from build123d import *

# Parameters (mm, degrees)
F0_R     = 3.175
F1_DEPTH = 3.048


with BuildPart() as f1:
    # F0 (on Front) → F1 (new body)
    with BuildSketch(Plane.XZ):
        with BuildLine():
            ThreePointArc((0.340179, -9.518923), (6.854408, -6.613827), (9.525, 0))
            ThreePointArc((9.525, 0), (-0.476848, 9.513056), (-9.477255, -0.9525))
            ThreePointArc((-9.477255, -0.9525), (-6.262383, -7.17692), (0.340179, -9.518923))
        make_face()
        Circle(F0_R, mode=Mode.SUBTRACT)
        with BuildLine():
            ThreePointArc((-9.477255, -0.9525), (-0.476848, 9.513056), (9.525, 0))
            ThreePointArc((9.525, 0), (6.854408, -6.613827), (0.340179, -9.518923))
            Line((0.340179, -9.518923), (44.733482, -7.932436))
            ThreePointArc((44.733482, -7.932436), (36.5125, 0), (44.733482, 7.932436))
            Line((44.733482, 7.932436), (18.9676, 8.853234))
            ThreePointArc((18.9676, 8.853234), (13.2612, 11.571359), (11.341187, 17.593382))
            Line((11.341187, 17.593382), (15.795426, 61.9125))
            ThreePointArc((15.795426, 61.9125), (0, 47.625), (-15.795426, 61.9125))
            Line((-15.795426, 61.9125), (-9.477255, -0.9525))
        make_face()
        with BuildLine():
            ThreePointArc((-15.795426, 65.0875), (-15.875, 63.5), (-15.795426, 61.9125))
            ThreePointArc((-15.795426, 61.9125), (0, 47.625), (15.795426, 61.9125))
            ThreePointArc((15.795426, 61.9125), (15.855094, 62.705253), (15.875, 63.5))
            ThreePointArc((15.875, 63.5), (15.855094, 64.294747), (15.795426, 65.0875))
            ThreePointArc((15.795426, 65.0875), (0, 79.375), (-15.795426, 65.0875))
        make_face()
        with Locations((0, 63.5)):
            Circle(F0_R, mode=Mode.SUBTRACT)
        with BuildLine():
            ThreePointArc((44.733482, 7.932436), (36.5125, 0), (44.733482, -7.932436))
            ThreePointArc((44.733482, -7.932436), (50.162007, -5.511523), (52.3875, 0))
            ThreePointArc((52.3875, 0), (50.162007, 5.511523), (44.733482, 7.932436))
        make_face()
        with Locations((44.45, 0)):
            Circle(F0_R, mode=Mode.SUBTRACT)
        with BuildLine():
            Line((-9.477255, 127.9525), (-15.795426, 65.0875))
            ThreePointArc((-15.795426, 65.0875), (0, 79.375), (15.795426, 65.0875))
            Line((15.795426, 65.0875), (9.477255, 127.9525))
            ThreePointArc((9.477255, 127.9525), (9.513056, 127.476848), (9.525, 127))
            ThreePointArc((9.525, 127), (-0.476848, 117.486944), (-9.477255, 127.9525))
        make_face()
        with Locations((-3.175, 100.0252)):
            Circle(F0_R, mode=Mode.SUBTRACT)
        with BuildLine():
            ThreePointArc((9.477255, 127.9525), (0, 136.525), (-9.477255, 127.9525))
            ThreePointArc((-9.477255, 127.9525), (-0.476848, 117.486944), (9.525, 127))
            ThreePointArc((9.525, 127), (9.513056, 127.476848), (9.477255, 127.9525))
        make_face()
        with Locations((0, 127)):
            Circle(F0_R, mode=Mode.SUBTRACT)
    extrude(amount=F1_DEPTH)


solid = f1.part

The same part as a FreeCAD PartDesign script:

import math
import FreeCAD as App
import Part
import Sketcher
from FreeCAD import Vector
Q = App.Units.Quantity

doc = App.newDocument("Part")
params = doc.addObject("Spreadsheet::Sheet", "Params")
for row, (alias, value) in enumerate([
    ("sketch1_diameter", "0.25 in"),
    ("sketch1_diameter2", "0.25 in"),
    ("sketch1_diameter3", "0.25 in"),
    ("sketch1_diameter4", "0.25 in"),
    ("sketch1_diameter5", "0.25 in"),
    ("pad1_length", "0.12 in"),
], start=1):
    params.set(f"A{row}", alias)
    params.set(f"B{row}", "=" + value)
    params.setAlias(f"B{row}", alias)

body = doc.addObject("PartDesign::Body", "Body")

sketch1 = doc.addObject("Sketcher::SketchObject", "Sketch")
body.addObject(sketch1)
sketch1.AttachmentSupport = (doc.XZ_Plane, [""])
sketch1.MapMode = "FlatFace"
sketch1.addGeometry([
    Part.ArcOfCircle(Part.Circle(Vector(-0.000001, -0.000001, 0), Vector(0, 0, 1), 9.524999), math.radians(-174.260832), math.radians(-87.953281)),
    Part.LineSegment(Vector(0.340179, -9.518923, 0), Vector(44.733482, -7.932436, 0)),
    Part.ArcOfCircle(Part.Circle(Vector(44.450001, -0.000001, 0), Vector(0, 0, 1), 7.937499), math.radians(-87.953294), math.radians(0.000005)),
    Part.ArcOfCircle(Part.Circle(Vector(44.450001, 0.000001, 0), Vector(0, 0, 1), 7.937499), math.radians(-0.000005), math.radians(87.953294)),
    Part.LineSegment(Vector(44.733482, 7.932436, 0), Vector(18.9676, 8.853234, 0)),
    Part.ArcOfCircle(Part.Circle(Vector(19.251535, 16.798361, 0), Vector(0, 0, 1), 7.950199), math.radians(174.260822), math.radians(267.953292)),
    Part.LineSegment(Vector(11.341187, 17.593382, 0), Vector(15.795426, 61.9125, 0)),
    Part.ArcOfCircle(Part.Circle(Vector(-0.000084, 63.5, 0), Vector(0, 0, 1), 15.875084), math.radians(-5.73914), math.radians(0)),
    Part.ArcOfCircle(Part.Circle(Vector(-0.000084, 63.5, 0), Vector(0, 0, 1), 15.875084), math.radians(0), math.radians(5.73914)),
    Part.LineSegment(Vector(15.795426, 65.0875, 0), Vector(9.477255, 127.9525, 0)),
    Part.ArcOfCircle(Part.Circle(Vector(0, 127, 0), Vector(0, 0, 1), 9.525), math.radians(5.739168), math.radians(174.260832)),
    Part.LineSegment(Vector(-9.477255, 127.9525, 0), Vector(-15.795426, 65.0875, 0)),
    Part.ArcOfCircle(Part.Circle(Vector(0.000087, 63.5, 0), Vector(0, 0, 1), 15.875087), math.radians(174.260861), math.radians(185.739139)),
    Part.LineSegment(Vector(-15.795426, 61.9125, 0), Vector(-9.477255, -0.9525, 0)),
    Part.Circle(Vector(0, 0, 0), Vector(0, 0, 1), 3.175),
    Part.Circle(Vector(44.45, 0, 0), Vector(0, 0, 1), 3.175),
    Part.Circle(Vector(0, 63.5, 0), Vector(0, 0, 1), 3.175),
    Part.Circle(Vector(-3.175, 100.0252, 0), Vector(0, 0, 1), 3.175),
    Part.Circle(Vector(0, 127, 0), Vector(0, 0, 1), 3.175),
], False)
sketch1.addConstraint([
    Sketcher.Constraint("Coincident", 0, 2, 1, 1),
    Sketcher.Constraint("Coincident", 1, 2, 2, 1),
    Sketcher.Constraint("Coincident", 2, 2, 3, 1),
    Sketcher.Constraint("Coincident", 3, 2, 4, 1),
    Sketcher.Constraint("Coincident", 4, 2, 5, 2),
    Sketcher.Constraint("Coincident", 5, 1, 6, 1),
    Sketcher.Constraint("Coincident", 6, 2, 7, 1),
    Sketcher.Constraint("Coincident", 7, 2, 8, 1),
    Sketcher.Constraint("Coincident", 8, 2, 9, 1),
    Sketcher.Constraint("Coincident", 9, 2, 10, 1),
    Sketcher.Constraint("Coincident", 10, 2, 11, 1),
    Sketcher.Constraint("Coincident", 11, 2, 12, 1),
    Sketcher.Constraint("Coincident", 12, 2, 13, 1),
    Sketcher.Constraint("Coincident", 13, 2, 0, 1),
    Sketcher.Constraint("Coincident", 0, 3, -1, 1),
    Sketcher.Constraint("Coincident", 14, 3, -1, 1),
    Sketcher.Constraint("Coincident", 3, 3, 2, 3),
    Sketcher.Constraint("Coincident", 8, 3, 7, 3),
    Sketcher.Constraint("Coincident", 15, 3, 2, 3),
    Sketcher.Constraint("Coincident", 18, 3, 10, 3),
    Sketcher.Constraint("PointOnObject", 2, 3, -1),
    Sketcher.Constraint("PointOnObject", 10, 3, -2),
    Sketcher.Constraint("PointOnObject", 16, 3, -2),
    Sketcher.Constraint("PointOnObject", 2, 2, -1),
    Sketcher.Constraint("Diameter", 14, Q("0.25 in")),
    Sketcher.Constraint("Diameter", 15, Q("0.25 in")),
    Sketcher.Constraint("Diameter", 16, Q("0.25 in")),
    Sketcher.Constraint("Diameter", 17, Q("0.25 in")),
    Sketcher.Constraint("Diameter", 18, Q("0.25 in")),
    Sketcher.Constraint("DistanceY", -1, 1, 10, 3, Q("5 in")),
    Sketcher.Constraint("Radius", 0, Q("0.375 in")),
    Sketcher.Constraint("Radius", 2, Q("0.3125 in")),
    Sketcher.Constraint("Radius", 5, Q("0.313 in")),
    Sketcher.Constraint("Radius", 10, Q("0.375 in")),
    Sketcher.Constraint("DistanceY", -1, 1, 7, 3, Q("2.5 in")),
    Sketcher.Constraint("DistanceY", -1, 1, 12, 3, Q("2.5 in")),
    Sketcher.Constraint("DistanceY", -1, 1, 16, 3, Q("2.5 in")),
    Sketcher.Constraint("DistanceY", -1, 1, 7, 2, Q("2.5 in")),
    Sketcher.Constraint("DistanceX", -1, 1, 2, 3, Q("1.75 in")),
    Sketcher.Constraint("DistanceX", 17, 3, -1, 1, Q("0.125 in")),
    Sketcher.Constraint("DistanceY", -1, 1, 17, 3, Q("3.938 in")),
    Sketcher.Constraint("DistanceY", -1, 1, 6, 2, Q("2.4375 in")),
    Sketcher.Constraint("DistanceX", -1, 1, 7, 2, Q("0.625 in")),
    Sketcher.Constraint("DistanceY", -1, 1, 8, 2, Q("2.5625 in")),
    Sketcher.Constraint("DistanceY", -1, 1, 11, 2, Q("2.5625 in")),
    Sketcher.Constraint("DistanceY", -1, 1, 12, 2, Q("2.4375 in")),
    Sketcher.Constraint("DistanceY", 8, 2, 9, 2, Q("2.475 in")),
    Sketcher.Constraint("DistanceY", -1, 1, 10, 2, Q("5.0375 in")),
    Sketcher.Constraint("DistanceY", 13, 2, -1, 1, Q("0.0375 in")),
    Sketcher.Constraint("Radius", 7, Q("15.875084 mm")),
    Sketcher.Constraint("Radius", 12, Q("15.875087 mm")),
    Sketcher.Constraint("DistanceY", 5, 3, 5, 1, Q("0.0313 in")),
    Sketcher.Constraint("DistanceX", -1, 1, 4, 2, Q("18.9676 mm")),
    Sketcher.Constraint("Distance", 4, Q("25.78233 mm")),
    Sketcher.Constraint("Distance", 6, Q("44.54239 mm")),
    Sketcher.Constraint("DistanceY", -1, 1, 5, 3, Q("16.798361 mm")),
    Sketcher.Constraint("DistanceX", -1, 1, 0, 2, Q("0.340179 mm")),
    Sketcher.Constraint("DistanceX", 7, 3, 12, 3, Q("0.000171 mm")),
    Sketcher.Constraint("DistanceX", 2, 3, 1, 2, Q("0.283481 mm")),
])
sketch1.setExpression("Constraints[24]", "Params.sketch1_diameter")
sketch1.setExpression("Constraints[25]", "Params.sketch1_diameter2")
sketch1.setExpression("Constraints[26]", "Params.sketch1_diameter3")
sketch1.setExpression("Constraints[27]", "Params.sketch1_diameter4")
sketch1.setExpression("Constraints[28]", "Params.sketch1_diameter5")
pad1 = doc.addObject("PartDesign::Pad", "Pad")
body.addObject(pad1)
pad1.Profile = sketch1
pad1.setExpression("Length", "Params.pad1_length")

doc.recompute()
